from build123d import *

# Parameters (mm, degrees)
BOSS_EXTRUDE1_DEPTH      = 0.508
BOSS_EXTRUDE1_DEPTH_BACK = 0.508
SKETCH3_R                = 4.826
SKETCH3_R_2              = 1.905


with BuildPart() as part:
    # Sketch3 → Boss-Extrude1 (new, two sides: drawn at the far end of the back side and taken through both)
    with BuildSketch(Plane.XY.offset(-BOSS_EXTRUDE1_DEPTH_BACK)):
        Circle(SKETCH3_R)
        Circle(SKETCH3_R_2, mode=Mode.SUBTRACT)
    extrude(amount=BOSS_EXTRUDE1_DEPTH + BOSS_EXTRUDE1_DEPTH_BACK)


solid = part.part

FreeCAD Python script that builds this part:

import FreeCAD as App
import Part
import Sketcher

V = App.Vector
Q = App.Units.Quantity

doc = App.newDocument("Part")
params = doc.addObject("Spreadsheet::Sheet", "Params")
for row, (alias, value) in enumerate([
    ("sketch1_diameter", "0.38 in"),
    ("sketch1_diameter2", "0.15 in"),
    ("pad1_length", "0.02 in"),
    ("pad1_length2", "0.02 in"),
], start=1):
    params.set(f"A{row}", alias)
    params.set(f"B{row}", "=" + value)
    params.setAlias(f"B{row}", alias)

body = doc.addObject("PartDesign::Body", "Body")

sketch1 = body.newObject("Sketcher::SketchObject", "Sketch")
sketch1.AttachmentSupport = (doc.getObject("XY_Plane"), [""])
sketch1.MapMode = "FlatFace"
sketch1.addGeometry([
    Part.Circle(V(0, 0, 0), V(0, 0, 1), 4.8),
    Part.Circle(V(0, 0, 0), V(0, 0, 1), 1.9),
], False)
sketch1.addConstraint([
    Sketcher.Constraint("Coincident", 0, 3, -1, 1),
    Sketcher.Constraint("Coincident", 1, 3, -1, 1),
    Sketcher.Constraint("Diameter", 0, Q("0.38 in")),
    Sketcher.Constraint("Diameter", 1, Q("0.15 in")),
])
sketch1.setExpression("Constraints[2]", "Params.sketch1_diameter")
sketch1.setExpression("Constraints[3]", "Params.sketch1_diameter2")
pad1 = body.newObject("PartDesign::Pad", "Pad")
pad1.Profile = sketch1
pad1.Type = "TwoLengths"
pad1.setExpression("Length", "Params.pad1_length")
pad1.setExpression("Length2", "Params.pad1_length2")

doc.recompute()
